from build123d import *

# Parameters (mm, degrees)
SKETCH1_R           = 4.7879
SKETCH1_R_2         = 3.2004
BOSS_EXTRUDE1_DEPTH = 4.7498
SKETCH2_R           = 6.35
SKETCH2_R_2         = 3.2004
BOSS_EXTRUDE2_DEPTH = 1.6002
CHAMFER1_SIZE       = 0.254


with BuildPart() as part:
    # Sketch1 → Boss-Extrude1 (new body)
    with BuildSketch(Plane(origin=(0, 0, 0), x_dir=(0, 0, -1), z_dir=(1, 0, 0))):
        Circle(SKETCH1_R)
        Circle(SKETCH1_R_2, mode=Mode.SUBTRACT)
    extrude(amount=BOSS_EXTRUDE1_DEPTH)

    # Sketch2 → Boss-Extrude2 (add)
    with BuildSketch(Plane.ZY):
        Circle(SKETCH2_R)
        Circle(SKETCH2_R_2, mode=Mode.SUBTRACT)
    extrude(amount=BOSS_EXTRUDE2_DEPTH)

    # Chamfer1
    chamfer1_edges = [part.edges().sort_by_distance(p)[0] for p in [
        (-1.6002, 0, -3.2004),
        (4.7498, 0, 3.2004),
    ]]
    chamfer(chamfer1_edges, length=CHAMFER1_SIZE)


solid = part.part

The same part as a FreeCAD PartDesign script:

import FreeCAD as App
import Part
import Sketcher

V = App.Vector
Q = App.Units.Quantity


def edges_at(feature, points):
    """Names of the edges that pass closest to the given points."""
    edges = feature.Shape.Edges
    near = lambda p: min(range(len(edges)), key=lambda i: edges[i].distToShape(Part.Vertex(*p))[0])
    return sorted({f"Edge{near(p) + 1}" for p in points})

doc = App.newDocument("Part")
body = doc.addObject("PartDesign::Body", "Body")

# Sketch on YZ plane
sketch1 = body.newObject("Sketcher::SketchObject", "Sketch")
sketch1.AttachmentSupport = (doc.getObject("YZ_Plane"), [""])
sketch1.MapMode = "FlatFace"
sketch1.addGeometry(Part.Circle(V(0, 0, 0), V(0, 0, 1), 4.8), False)
sketch1.addGeometry(Part.Circle(V(0, 0, 0), V(0, 0, 1), 3.2), False)
sketch1.addConstraint(Sketcher.Constraint("Coincident", 0, 3, -1, 1))
sketch1.addConstraint(Sketcher.Constraint("Coincident", 1, 3, -1, 1))
sketch1.addConstraint(Sketcher.Constraint("Diameter", 0, Q("0.377 in")))
sketch1.addConstraint(Sketcher.Constraint("Diameter", 1, Q("0.252 in")))
pad1 = body.newObject("PartDesign::Pad", "Pad")
pad1.Profile = sketch1
pad1.Length = Q("0.187 in")

# Sketch on YZ plane
sketch2 = body.newObject("Sketcher::SketchObject", "Sketch001")
sketch2.AttachmentSupport = (doc.getObject("YZ_Plane"), [""])
sketch2.MapMode = "FlatFace"
sketch2.addGeometry(Part.Circle(V(0, 0, 0), V(0, 0, 1), 6.3), False)
sketch2.addGeometry(Part.Circle(V(0, 0, 0), V(0, 0, 1), 3.2), False)
sketch2.addConstraint(Sketcher.Constraint("Coincident", 0, 3, -1, 1))
sketch2.addConstraint(Sketcher.Constraint("Coincident", 1, 3, -1, 1))
sketch2.addConstraint(Sketcher.Constraint("Diameter", 0, Q("0.5 in")))
sketch2.addConstraint(Sketcher.Constraint("Diameter", 1, Q("0.252 in")))
pad2 = body.newObject("PartDesign::Pad", "Pad001")
pad2.Profile = sketch2
pad2.Length = Q("0.063 in")
pad2.Reversed = True
doc.recompute()

chamfer = body.newObject("PartDesign::Chamfer", "Chamfer")
chamfer.Base = (pad2, edges_at(pad2, [(-1.6, 0, -3.2), (4.75, 0, 3.2)]))
chamfer.Size = Q("0.01 in")

doc.recompute()
